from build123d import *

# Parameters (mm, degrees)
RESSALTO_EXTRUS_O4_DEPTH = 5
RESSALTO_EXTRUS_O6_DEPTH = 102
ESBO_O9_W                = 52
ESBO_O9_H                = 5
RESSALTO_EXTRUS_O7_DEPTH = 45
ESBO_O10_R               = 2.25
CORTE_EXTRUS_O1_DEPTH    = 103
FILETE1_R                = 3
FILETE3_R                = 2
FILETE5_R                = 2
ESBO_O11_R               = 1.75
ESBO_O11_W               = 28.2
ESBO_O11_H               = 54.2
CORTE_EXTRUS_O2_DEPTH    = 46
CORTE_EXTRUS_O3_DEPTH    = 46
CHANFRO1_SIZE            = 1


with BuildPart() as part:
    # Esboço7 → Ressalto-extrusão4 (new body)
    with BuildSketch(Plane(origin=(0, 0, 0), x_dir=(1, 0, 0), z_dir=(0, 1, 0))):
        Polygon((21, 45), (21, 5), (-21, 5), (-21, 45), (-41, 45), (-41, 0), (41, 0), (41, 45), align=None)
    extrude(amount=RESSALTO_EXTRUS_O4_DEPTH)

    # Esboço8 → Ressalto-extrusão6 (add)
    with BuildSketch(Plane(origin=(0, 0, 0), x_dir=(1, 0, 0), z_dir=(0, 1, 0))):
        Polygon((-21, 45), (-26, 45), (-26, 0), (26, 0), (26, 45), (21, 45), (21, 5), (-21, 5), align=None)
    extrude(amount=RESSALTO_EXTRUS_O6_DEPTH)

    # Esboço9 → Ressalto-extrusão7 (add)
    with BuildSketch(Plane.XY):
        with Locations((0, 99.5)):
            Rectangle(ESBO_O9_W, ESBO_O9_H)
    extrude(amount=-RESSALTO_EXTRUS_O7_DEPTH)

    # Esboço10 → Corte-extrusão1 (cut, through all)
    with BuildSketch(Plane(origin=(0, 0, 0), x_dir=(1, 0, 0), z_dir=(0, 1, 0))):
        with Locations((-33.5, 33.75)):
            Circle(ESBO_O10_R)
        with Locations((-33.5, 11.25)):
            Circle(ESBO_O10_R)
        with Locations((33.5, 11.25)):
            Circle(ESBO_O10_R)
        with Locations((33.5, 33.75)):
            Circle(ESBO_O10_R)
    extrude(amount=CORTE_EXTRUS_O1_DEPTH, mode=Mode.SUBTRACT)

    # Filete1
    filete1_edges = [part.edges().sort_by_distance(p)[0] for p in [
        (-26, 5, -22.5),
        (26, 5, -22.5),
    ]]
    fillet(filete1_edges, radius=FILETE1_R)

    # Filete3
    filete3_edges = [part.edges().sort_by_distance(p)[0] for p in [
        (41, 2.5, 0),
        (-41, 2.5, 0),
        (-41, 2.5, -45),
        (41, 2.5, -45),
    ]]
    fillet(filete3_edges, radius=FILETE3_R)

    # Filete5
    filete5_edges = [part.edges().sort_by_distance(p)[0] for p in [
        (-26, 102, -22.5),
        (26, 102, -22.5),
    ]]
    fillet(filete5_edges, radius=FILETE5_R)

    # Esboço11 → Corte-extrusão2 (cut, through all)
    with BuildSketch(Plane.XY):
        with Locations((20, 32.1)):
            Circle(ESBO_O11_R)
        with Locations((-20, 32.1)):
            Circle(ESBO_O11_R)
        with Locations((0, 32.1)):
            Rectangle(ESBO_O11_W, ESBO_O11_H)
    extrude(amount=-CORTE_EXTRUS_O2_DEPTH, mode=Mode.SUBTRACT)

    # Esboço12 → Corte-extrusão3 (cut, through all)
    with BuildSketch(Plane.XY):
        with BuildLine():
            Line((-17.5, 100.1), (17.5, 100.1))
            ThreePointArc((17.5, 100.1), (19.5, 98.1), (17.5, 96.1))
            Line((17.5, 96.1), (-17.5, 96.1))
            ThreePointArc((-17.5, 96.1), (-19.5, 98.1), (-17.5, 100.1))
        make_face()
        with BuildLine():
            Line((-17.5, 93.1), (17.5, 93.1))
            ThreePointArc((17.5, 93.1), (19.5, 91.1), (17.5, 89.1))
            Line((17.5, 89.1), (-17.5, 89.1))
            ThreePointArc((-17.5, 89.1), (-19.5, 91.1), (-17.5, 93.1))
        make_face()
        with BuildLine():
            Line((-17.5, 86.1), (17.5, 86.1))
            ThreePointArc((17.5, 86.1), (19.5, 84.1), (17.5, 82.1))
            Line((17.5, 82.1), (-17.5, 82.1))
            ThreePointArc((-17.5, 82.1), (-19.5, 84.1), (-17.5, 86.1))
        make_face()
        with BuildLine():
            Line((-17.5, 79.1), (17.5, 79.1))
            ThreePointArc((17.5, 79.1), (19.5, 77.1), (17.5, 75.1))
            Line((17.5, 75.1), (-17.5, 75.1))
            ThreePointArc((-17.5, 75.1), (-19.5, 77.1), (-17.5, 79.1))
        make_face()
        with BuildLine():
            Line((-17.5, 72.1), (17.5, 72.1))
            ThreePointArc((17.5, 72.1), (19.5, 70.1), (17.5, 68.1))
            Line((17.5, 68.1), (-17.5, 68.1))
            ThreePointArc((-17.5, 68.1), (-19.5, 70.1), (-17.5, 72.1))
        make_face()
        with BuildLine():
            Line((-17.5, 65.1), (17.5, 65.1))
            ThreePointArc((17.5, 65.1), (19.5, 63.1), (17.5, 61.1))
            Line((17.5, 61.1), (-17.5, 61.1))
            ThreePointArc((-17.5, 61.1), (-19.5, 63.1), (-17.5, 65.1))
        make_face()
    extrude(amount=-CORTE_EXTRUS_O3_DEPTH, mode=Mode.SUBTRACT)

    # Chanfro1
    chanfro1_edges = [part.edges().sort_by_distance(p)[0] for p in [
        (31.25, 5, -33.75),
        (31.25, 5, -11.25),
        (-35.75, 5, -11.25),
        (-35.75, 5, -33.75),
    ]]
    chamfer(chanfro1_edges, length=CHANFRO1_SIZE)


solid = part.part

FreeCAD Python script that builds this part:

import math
import FreeCAD as App
import Part
import Sketcher

V = App.Vector


def edges_at(feature, points):
    """Names of the edges that pass closest to the given points."""
    edges = feature.Shape.Edges
    near = lambda p: min(range(len(edges)), key=lambda i: edges[i].distToShape(Part.Vertex(*p))[0])
    return sorted({f"Edge{near(p) + 1}" for p in points})


def add_polygon(sketch, points):
    """Adds a closed chain of lines whose ends are joined by coincident constraints."""
    first, n = sketch.GeometryCount, len(points)
    for a, b in zip(points, points[1:] + points[:1]):
        sketch.addGeometry(Part.LineSegment(App.Vector(*a, 0), App.Vector(*b, 0)), False)
    for i in range(n):
        sketch.addConstraint(Sketcher.Constraint("Coincident", first + i, 2, first + (i + 1) % n, 1))

doc = App.newDocument("Part")
params = doc.addObject("Spreadsheet::Sheet", "Params")
for row, (alias, value) in enumerate([
    ("sketch1_width", "42 mm"),
    ("sketch1_width2", "20 mm"),
    ("sketch1_height", "40 mm"),
    ("sketch1_height2", "45 mm"),
    ("pad1_length", "5 mm"),
    ("sketch2_width", "5 mm"),
    ("sketch2_width2", "52 mm"),
    ("sketch2_height", "45 mm"),
    ("sketch2_height2", "40 mm"),
    ("pad2_length", "102 mm"),
    ("sketch3_width", "52 mm"),
    ("sketch3_height", "5 mm"),
    ("pad3_length", "45 mm"),
    ("sketch4_diameter", "4.5 mm"),
    ("fillet_radius", "3 mm"),
    ("fillet2_radius", "2 mm"),
    ("fillet3_radius", "2 mm"),
    ("sketch5_diameter", "3.5 mm"),
    ("sketch5_width", "28.2 mm"),
    ("sketch5_height", "54.2 mm"),
    ("sketch6_radius", "2 mm"),
    ("sketch6_width", "35 mm"),
    ("chamfer_size", "1 mm"),
], start=1):
    params.set(f"A{row}", alias)
    params.set(f"B{row}", "=" + value)
    params.setAlias(f"B{row}", alias)

body = doc.addObject("PartDesign::Body", "Body")

sketch1 = body.newObject("Sketcher::SketchObject", "Sketch")
sketch1.AttachmentSupport = (doc.getObject("XZ_Plane"), [""])
sketch1.MapMode = "FlatFace"
add_polygon(sketch1, [(21, -45), (21, -5), (-21, -5), (-21, -45), (-41, -45), (-41, 0), (41, 0), (41, -45)])
sketch1.addConstraint([
    Sketcher.Constraint("Vertical", 0),
    Sketcher.Constraint("Horizontal", 1),
    Sketcher.Constraint("Vertical", 2),
    Sketcher.Constraint("Horizontal", 3),
    Sketcher.Constraint("Vertical", 4),
    Sketcher.Constraint("Horizontal", 5),
    Sketcher.Constraint("Vertical", 6),
    Sketcher.Constraint("Horizontal", 7),
    Sketcher.Constraint("Symmetric", 4, 2, 5, 2, -1, 1),
    Sketcher.Constraint("Symmetric", 2, 2, 7, 2, -2),
    Sketcher.Constraint("DistanceX", 1, 2, 1, 1, 42.0),
    Sketcher.Constraint("DistanceX", 3, 2, 3, 1, 20.0),
    Sketcher.Constraint("DistanceY", 0, 1, 0, 2, 40.0),
    Sketcher.Constraint("DistanceY", 4, 1, 4, 2, 45.0),
])
sketch1.setExpression("Constraints[18]", "Params.sketch1_width")
sketch1.setExpression("Constraints[19]", "Params.sketch1_width2")
sketch1.setExpression("Constraints[20]", "Params.sketch1_height")
sketch1.setExpression("Constraints[21]", "Params.sketch1_height2")
pad1 = body.newObject("PartDesign::Pad", "Pad")
pad1.Profile = sketch1
pad1.setExpression("Length", "Params.pad1_length")
pad1.Reversed = True

sketch2 = body.newObject("Sketcher::SketchObject", "Sketch001")
sketch2.AttachmentSupport = (doc.getObject("XZ_Plane"), [""])
sketch2.MapMode = "FlatFace"
add_polygon(sketch2, [(-21, -45), (-26, -45), (-26, 0), (26, 0), (26, -45), (21, -45), (21, -5), (-21, -5)])
sketch2.addConstraint([
    Sketcher.Constraint("Horizontal", 0),
    Sketcher.Constraint("Vertical", 1),
    Sketcher.Constraint("Horizontal", 2),
    Sketcher.Constraint("Vertical", 3),
    Sketcher.Constraint("Horizontal", 4),
    Sketcher.Constraint("Vertical", 5),
    Sketcher.Constraint("Horizontal", 6),
    Sketcher.Constraint("Vertical", 7),
    Sketcher.Constraint("Symmetric", 1, 2, 2, 2, -1, 1),
    Sketcher.Constraint("Symmetric", 4, 2, 7, 2, -2),
    Sketcher.Constraint("DistanceX", 0, 2, 0, 1, 5.0),
    Sketcher.Constraint("DistanceX", 2, 1, 2, 2, 52.0),
    Sketcher.Constraint("DistanceY", 1, 1, 1, 2, 45.0),
    Sketcher.Constraint("DistanceY", 5, 1, 5, 2, 40.0),
])
sketch2.setExpression("Constraints[18]", "Params.sketch2_width")
sketch2.setExpression("Constraints[19]", "Params.sketch2_width2")
sketch2.setExpression("Constraints[20]", "Params.sketch2_height")
sketch2.setExpression("Constraints[21]", "Params.sketch2_height2")
pad2 = body.newObject("PartDesign::Pad", "Pad001")
pad2.Profile = sketch2
pad2.setExpression("Length", "Params.pad2_length")
pad2.Reversed = True

sketch3 = body.newObject("Sketcher::SketchObject", "Sketch002")
sketch3.AttachmentSupport = (doc.getObject("XY_Plane"), [""])
sketch3.MapMode = "FlatFace"
add_polygon(sketch3, [(-26, 102), (-26, 97), (26, 97), (26, 102)])
sketch3.addConstraint([
    Sketcher.Constraint("Vertical", 0),
    Sketcher.Constraint("Horizontal", 1),
    Sketcher.Constraint("Vertical", 2),
    Sketcher.Constraint("Horizontal", 3),
    Sketcher.Constraint("DistanceX", 1, 1, 1, 2, 52.0),
    Sketcher.Constraint("DistanceY", 0, 2, 0, 1, 5.0),
    Sketcher.Constraint("DistanceX", 0, 2, -1, 1, 26.0),
    Sketcher.Constraint("DistanceY", -1, 1, 0, 2, 97.0),
])
sketch3.setExpression("Constraints[8]", "Params.sketch3_width")
sketch3.setExpression("Constraints[9]", "Params.sketch3_height")
pad3 = body.newObject("PartDesign::Pad", "Pad002")
pad3.Profile = sketch3
pad3.setExpression("Length", "Params.pad3_length")
pad3.Reversed = True

sketch4 = body.newObject("Sketcher::SketchObject", "Sketch003")
sketch4.AttachmentSupport = (doc.getObject("XZ_Plane"), [""])
sketch4.MapMode = "FlatFace"
sketch4.addGeometry([
    Part.Circle(V(-33.5, -33.75, 0), V(0, 0, 1), 2.25),
    Part.Circle(V(-33.5, -11.25, 0), V(0, 0, 1), 2.25),
    Part.Circle(V(33.5, -11.25, 0), V(0, 0, 1), 2.25),
    Part.Circle(V(33.5, -33.75, 0), V(0, 0, 1), 2.25),
], False)
sketch4.addConstraint([
    Sketcher.Constraint("Equal", 0, 1),
    Sketcher.Constraint("Equal", 1, 2),
    Sketcher.Constraint("Equal", 2, 3),
    Sketcher.Constraint("Symmetric", 1, 3, 2, 3, -2),
    Sketcher.Constraint("Symmetric", 0, 3, 3, 3, -2),
    Sketcher.Constraint("Vertical", 0, 3, 1, 3),
    Sketcher.Constraint("Diameter", 0, 4.5),
    Sketcher.Constraint("DistanceX", 1, 3, 2, 3, 67.0),
    Sketcher.Constraint("DistanceY", 0, 3, 1, 3, 22.5),
    Sketcher.Constraint("DistanceY", 0, 3, -1, 1, 33.75),
])
sketch4.setExpression("Constraints[6]", "Params.sketch4_diameter")
pocket1 = body.newObject("PartDesign::Pocket", "Pocket")
pocket1.Profile = sketch4
pocket1.Type = "ThroughAll"
doc.recompute()

fillet = body.newObject("PartDesign::Fillet", "Fillet")
fillet.Base = (pocket1, edges_at(pocket1, [(-26, 5, -22.5), (26, 5, -22.5)]))
fillet.setExpression("Radius", "Params.fillet_radius")
doc.recompute()

fillet2 = body.newObject("PartDesign::Fillet", "Fillet001")
fillet2.Base = (fillet, edges_at(fillet, [
    (41, 2.5, 0),
    (-41, 2.5, 0),
    (-41, 2.5, -45),
    (41, 2.5, -45),
]))
fillet2.setExpression("Radius", "Params.fillet2_radius")
doc.recompute()

fillet3 = body.newObject("PartDesign::Fillet", "Fillet002")
fillet3.Base = (fillet2, edges_at(fillet2, [(-26, 102, -22.5), (26, 102, -22.5)]))
fillet3.setExpression("Radius", "Params.fillet3_radius")

sketch5 = body.newObject("Sketcher::SketchObject", "Sketch004")
sketch5.AttachmentSupport = (doc.getObject("XY_Plane"), [""])
sketch5.MapMode = "FlatFace"
sketch5.addGeometry(Part.Circle(V(20, 32.1, 0), V(0, 0, 1), 1.75), False)
sketch5.addGeometry(Part.Circle(V(-20, 32.1, 0), V(0, 0, 1), 1.75), False)
add_polygon(sketch5, [(-14.1, 59.2), (-14.1, 5), (14.1, 5), (14.1, 59.2)])
sketch5.addConstraint([
    Sketcher.Constraint("Vertical", 2),
    Sketcher.Constraint("Horizontal", 3),
    Sketcher.Constraint("Vertical", 4),
    Sketcher.Constraint("Horizontal", 5),
    Sketcher.Constraint("Equal", 0, 1),
    Sketcher.Constraint("Symmetric", 0, 3, 1, 3, -2),
    Sketcher.Constraint("Diameter", 0, 3.5),
    Sketcher.Constraint("DistanceX", 3, 1, 3, 2, 28.2),
    Sketcher.Constraint("DistanceY", 2, 2, 2, 1, 54.2),
    Sketcher.Constraint("DistanceX", -1, 1, 0, 3, 20.0),
    Sketcher.Constraint("DistanceY", -1, 1, 2, 2, 5.0),
    Sketcher.Constraint("DistanceY", -1, 1, 0, 3, 32.1),
    Sketcher.Constraint("DistanceX", 2, 2, -1, 1, 14.1),
])
sketch5.setExpression("Constraints[10]", "Params.sketch5_diameter")
sketch5.setExpression("Constraints[11]", "Params.sketch5_width")
sketch5.setExpression("Constraints[12]", "Params.sketch5_height")
pocket2 = body.newObject("PartDesign::Pocket", "Pocket001")
pocket2.Profile = sketch5
pocket2.Type = "ThroughAll"

sketch6 = body.newObject("Sketcher::SketchObject", "Sketch005")
sketch6.AttachmentSupport = (doc.getObject("XY_Plane"), [""])
sketch6.MapMode = "FlatFace"
sketch6.addGeometry([
    Part.LineSegment(V(17.5, 100.1, 0), V(-17.5, 100.1, 0)),
    Part.ArcOfCircle(Part.Circle(V(-17.5, 98.1, 0), V(0, 0, 1), 2), math.radians(90), math.radians(270)),
    Part.LineSegment(V(-17.5, 96.1, 0), V(17.5, 96.1, 0)),
    Part.ArcOfCircle(Part.Circle(V(17.5, 98.1, 0), V(0, 0, 1), 2), math.radians(-90), math.radians(90)),
    Part.LineSegment(V(17.5, 93.1, 0), V(-17.5, 93.1, 0)),
    Part.ArcOfCircle(Part.Circle(V(-17.5, 91.1, 0), V(0, 0, 1), 2), math.radians(90), math.radians(270)),
    Part.LineSegment(V(-17.5, 89.1, 0), V(17.5, 89.1, 0)),
    Part.ArcOfCircle(Part.Circle(V(17.5, 91.1, 0), V(0, 0, 1), 2), math.radians(-90), math.radians(90)),
    Part.LineSegment(V(17.5, 86.1, 0), V(-17.5, 86.1, 0)),
    Part.ArcOfCircle(Part.Circle(V(-17.5, 84.1, 0), V(0, 0, 1), 2), math.radians(90), math.radians(270)),
    Part.LineSegment(V(-17.5, 82.1, 0), V(17.5, 82.1, 0)),
    Part.ArcOfCircle(Part.Circle(V(17.5, 84.1, 0), V(0, 0, 1), 2), math.radians(-90), math.radians(90)),
    Part.LineSegment(V(17.5, 79.1, 0), V(-17.5, 79.1, 0)),
    Part.ArcOfCircle(Part.Circle(V(-17.5, 77.1, 0), V(0, 0, 1), 2), math.radians(90), math.radians(270)),
    Part.LineSegment(V(-17.5, 75.1, 0), V(17.5, 75.1, 0)),
    Part.ArcOfCircle(Part.Circle(V(17.5, 77.1, 0), V(0, 0, 1), 2), math.radians(-90), math.radians(90)),
    Part.LineSegment(V(17.5, 72.1, 0), V(-17.5, 72.1, 0)),
    Part.ArcOfCircle(Part.Circle(V(-17.5, 70.1, 0), V(0, 0, 1), 2), math.radians(90), math.radians(270)),
    Part.LineSegment(V(-17.5, 68.1, 0), V(17.5, 68.1, 0)),
    Part.ArcOfCircle(Part.Circle(V(17.5, 70.1, 0), V(0, 0, 1), 2), math.radians(-90), math.radians(90)),
    Part.LineSegment(V(17.5, 65.1, 0), V(-17.5, 65.1, 0)),
    Part.ArcOfCircle(Part.Circle(V(-17.5, 63.1, 0), V(0, 0, 1), 2), math.radians(90), math.radians(270)),
    Part.LineSegment(V(-17.5, 61.1, 0), V(17.5, 61.1, 0)),
    Part.ArcOfCircle(Part.Circle(V(17.5, 63.1, 0), V(0, 0, 1), 2), math.radians(-90), math.radians(90)),
], False)
sketch6.addConstraint([
    Sketcher.Constraint("Tangent", 0, 2, 1, 1),
    Sketcher.Constraint("Tangent", 1, 2, 2, 1),
    Sketcher.Constraint("Tangent", 2, 2, 3, 1),
    Sketcher.Constraint("Tangent", 3, 2, 0, 1),
    Sketcher.Constraint("Tangent", 4, 2, 5, 1),
    Sketcher.Constraint("Tangent", 5, 2, 6, 1),
    Sketcher.Constraint("Tangent", 6, 2, 7, 1),
    Sketcher.Constraint("Tangent", 7, 2, 4, 1),
    Sketcher.Constraint("Tangent", 8, 2, 9, 1),
    Sketcher.Constraint("Tangent", 9, 2, 10, 1),
    Sketcher.Constraint("Tangent", 10, 2, 11, 1),
    Sketcher.Constraint("Tangent", 11, 2, 8, 1),
    Sketcher.Constraint("Tangent", 12, 2, 13, 1),
    Sketcher.Constraint("Tangent", 13, 2, 14, 1),
    Sketcher.Constraint("Tangent", 14, 2, 15, 1),
    Sketcher.Constraint("Tangent", 15, 2, 12, 1),
    Sketcher.Constraint("Tangent", 16, 2, 17, 1),
    Sketcher.Constraint("Tangent", 17, 2, 18, 1),
    Sketcher.Constraint("Tangent", 18, 2, 19, 1),
    Sketcher.Constraint("Tangent", 19, 2, 16, 1),
    Sketcher.Constraint("Tangent", 20, 2, 21, 1),
    Sketcher.Constraint("Tangent", 21, 2, 22, 1),
    Sketcher.Constraint("Tangent", 22, 2, 23, 1),
    Sketcher.Constraint("Tangent", 23, 2, 20, 1),
    Sketcher.Constraint("Horizontal", 0),
    Sketcher.Constraint("Horizontal", 2),
    Sketcher.Constraint("Horizontal", 4),
    Sketcher.Constraint("Horizontal", 6),
    Sketcher.Constraint("Horizontal", 8),
    Sketcher.Constraint("Horizontal", 10),
    Sketcher.Constraint("Horizontal", 12),
    Sketcher.Constraint("Horizontal", 14),
    Sketcher.Constraint("Horizontal", 16),
    Sketcher.Constraint("Horizontal", 18),
    Sketcher.Constraint("Horizontal", 20),
    Sketcher.Constraint("Horizontal", 22),
    Sketcher.Constraint("Equal", 3, 5),
    Sketcher.Constraint("Equal", 7, 9),
    Sketcher.Constraint("Equal", 11, 13),
    Sketcher.Constraint("Equal", 15, 17),
    Sketcher.Constraint("Equal", 19, 21),
    Sketcher.Constraint("Vertical", 1, 3, 5, 3),
    Sketcher.Constraint("Vertical", 3, 3, 7, 3),
    Sketcher.Constraint("Vertical", 5, 3, 9, 3),
    Sketcher.Constraint("Vertical", 7, 3, 11, 3),
    Sketcher.Constraint("Vertical", 9, 3, 13, 3),
    Sketcher.Constraint("Vertical", 11, 3, 15, 3),
    Sketcher.Constraint("Vertical", 13, 3, 17, 3),
    Sketcher.Constraint("Vertical", 15, 3, 19, 3),
    Sketcher.Constraint("Vertical", 17, 3, 21, 3),
    Sketcher.Constraint("Vertical", 19, 3, 23, 3),
    Sketcher.Constraint("Radius", 1, 2.0),
    Sketcher.Constraint("DistanceX", 0, 2, 0, 1, 35.0),
    Sketcher.Constraint("DistanceY", 5, 3, 1, 3, 7.0),
    Sketcher.Constraint("DistanceY", 9, 3, 5, 3, 7.0),
    Sketcher.Constraint("DistanceY", 13, 3, 9, 3, 7.0),
    Sketcher.Constraint("DistanceY", 17, 3, 13, 3, 7.0),
    Sketcher.Constraint("DistanceY", 21, 3, 17, 3, 7.0),
    Sketcher.Constraint("DistanceX", 1, 3, -1, 1, 17.5),
    Sketcher.Constraint("DistanceY", -1, 1, 1, 3, 98.1),
])
sketch6.setExpression("Constraints[51]", "Params.sketch6_radius")
sketch6.setExpression("Constraints[52]", "Params.sketch6_width")
pocket3 = body.newObject("PartDesign::Pocket", "Pocket002")
pocket3.Profile = sketch6
pocket3.Type = "ThroughAll"
doc.recompute()

chamfer = body.newObject("PartDesign::Chamfer", "Chamfer")
chamfer.Base = (pocket3, edges_at(pocket3, [
    (31.25, 5, -33.75),
    (31.25, 5, -11.25),
    (-35.75, 5, -11.25),
    (-35.75, 5, -33.75),
]))
chamfer.setExpression("Size", "Params.chamfer_size")

doc.recompute()
